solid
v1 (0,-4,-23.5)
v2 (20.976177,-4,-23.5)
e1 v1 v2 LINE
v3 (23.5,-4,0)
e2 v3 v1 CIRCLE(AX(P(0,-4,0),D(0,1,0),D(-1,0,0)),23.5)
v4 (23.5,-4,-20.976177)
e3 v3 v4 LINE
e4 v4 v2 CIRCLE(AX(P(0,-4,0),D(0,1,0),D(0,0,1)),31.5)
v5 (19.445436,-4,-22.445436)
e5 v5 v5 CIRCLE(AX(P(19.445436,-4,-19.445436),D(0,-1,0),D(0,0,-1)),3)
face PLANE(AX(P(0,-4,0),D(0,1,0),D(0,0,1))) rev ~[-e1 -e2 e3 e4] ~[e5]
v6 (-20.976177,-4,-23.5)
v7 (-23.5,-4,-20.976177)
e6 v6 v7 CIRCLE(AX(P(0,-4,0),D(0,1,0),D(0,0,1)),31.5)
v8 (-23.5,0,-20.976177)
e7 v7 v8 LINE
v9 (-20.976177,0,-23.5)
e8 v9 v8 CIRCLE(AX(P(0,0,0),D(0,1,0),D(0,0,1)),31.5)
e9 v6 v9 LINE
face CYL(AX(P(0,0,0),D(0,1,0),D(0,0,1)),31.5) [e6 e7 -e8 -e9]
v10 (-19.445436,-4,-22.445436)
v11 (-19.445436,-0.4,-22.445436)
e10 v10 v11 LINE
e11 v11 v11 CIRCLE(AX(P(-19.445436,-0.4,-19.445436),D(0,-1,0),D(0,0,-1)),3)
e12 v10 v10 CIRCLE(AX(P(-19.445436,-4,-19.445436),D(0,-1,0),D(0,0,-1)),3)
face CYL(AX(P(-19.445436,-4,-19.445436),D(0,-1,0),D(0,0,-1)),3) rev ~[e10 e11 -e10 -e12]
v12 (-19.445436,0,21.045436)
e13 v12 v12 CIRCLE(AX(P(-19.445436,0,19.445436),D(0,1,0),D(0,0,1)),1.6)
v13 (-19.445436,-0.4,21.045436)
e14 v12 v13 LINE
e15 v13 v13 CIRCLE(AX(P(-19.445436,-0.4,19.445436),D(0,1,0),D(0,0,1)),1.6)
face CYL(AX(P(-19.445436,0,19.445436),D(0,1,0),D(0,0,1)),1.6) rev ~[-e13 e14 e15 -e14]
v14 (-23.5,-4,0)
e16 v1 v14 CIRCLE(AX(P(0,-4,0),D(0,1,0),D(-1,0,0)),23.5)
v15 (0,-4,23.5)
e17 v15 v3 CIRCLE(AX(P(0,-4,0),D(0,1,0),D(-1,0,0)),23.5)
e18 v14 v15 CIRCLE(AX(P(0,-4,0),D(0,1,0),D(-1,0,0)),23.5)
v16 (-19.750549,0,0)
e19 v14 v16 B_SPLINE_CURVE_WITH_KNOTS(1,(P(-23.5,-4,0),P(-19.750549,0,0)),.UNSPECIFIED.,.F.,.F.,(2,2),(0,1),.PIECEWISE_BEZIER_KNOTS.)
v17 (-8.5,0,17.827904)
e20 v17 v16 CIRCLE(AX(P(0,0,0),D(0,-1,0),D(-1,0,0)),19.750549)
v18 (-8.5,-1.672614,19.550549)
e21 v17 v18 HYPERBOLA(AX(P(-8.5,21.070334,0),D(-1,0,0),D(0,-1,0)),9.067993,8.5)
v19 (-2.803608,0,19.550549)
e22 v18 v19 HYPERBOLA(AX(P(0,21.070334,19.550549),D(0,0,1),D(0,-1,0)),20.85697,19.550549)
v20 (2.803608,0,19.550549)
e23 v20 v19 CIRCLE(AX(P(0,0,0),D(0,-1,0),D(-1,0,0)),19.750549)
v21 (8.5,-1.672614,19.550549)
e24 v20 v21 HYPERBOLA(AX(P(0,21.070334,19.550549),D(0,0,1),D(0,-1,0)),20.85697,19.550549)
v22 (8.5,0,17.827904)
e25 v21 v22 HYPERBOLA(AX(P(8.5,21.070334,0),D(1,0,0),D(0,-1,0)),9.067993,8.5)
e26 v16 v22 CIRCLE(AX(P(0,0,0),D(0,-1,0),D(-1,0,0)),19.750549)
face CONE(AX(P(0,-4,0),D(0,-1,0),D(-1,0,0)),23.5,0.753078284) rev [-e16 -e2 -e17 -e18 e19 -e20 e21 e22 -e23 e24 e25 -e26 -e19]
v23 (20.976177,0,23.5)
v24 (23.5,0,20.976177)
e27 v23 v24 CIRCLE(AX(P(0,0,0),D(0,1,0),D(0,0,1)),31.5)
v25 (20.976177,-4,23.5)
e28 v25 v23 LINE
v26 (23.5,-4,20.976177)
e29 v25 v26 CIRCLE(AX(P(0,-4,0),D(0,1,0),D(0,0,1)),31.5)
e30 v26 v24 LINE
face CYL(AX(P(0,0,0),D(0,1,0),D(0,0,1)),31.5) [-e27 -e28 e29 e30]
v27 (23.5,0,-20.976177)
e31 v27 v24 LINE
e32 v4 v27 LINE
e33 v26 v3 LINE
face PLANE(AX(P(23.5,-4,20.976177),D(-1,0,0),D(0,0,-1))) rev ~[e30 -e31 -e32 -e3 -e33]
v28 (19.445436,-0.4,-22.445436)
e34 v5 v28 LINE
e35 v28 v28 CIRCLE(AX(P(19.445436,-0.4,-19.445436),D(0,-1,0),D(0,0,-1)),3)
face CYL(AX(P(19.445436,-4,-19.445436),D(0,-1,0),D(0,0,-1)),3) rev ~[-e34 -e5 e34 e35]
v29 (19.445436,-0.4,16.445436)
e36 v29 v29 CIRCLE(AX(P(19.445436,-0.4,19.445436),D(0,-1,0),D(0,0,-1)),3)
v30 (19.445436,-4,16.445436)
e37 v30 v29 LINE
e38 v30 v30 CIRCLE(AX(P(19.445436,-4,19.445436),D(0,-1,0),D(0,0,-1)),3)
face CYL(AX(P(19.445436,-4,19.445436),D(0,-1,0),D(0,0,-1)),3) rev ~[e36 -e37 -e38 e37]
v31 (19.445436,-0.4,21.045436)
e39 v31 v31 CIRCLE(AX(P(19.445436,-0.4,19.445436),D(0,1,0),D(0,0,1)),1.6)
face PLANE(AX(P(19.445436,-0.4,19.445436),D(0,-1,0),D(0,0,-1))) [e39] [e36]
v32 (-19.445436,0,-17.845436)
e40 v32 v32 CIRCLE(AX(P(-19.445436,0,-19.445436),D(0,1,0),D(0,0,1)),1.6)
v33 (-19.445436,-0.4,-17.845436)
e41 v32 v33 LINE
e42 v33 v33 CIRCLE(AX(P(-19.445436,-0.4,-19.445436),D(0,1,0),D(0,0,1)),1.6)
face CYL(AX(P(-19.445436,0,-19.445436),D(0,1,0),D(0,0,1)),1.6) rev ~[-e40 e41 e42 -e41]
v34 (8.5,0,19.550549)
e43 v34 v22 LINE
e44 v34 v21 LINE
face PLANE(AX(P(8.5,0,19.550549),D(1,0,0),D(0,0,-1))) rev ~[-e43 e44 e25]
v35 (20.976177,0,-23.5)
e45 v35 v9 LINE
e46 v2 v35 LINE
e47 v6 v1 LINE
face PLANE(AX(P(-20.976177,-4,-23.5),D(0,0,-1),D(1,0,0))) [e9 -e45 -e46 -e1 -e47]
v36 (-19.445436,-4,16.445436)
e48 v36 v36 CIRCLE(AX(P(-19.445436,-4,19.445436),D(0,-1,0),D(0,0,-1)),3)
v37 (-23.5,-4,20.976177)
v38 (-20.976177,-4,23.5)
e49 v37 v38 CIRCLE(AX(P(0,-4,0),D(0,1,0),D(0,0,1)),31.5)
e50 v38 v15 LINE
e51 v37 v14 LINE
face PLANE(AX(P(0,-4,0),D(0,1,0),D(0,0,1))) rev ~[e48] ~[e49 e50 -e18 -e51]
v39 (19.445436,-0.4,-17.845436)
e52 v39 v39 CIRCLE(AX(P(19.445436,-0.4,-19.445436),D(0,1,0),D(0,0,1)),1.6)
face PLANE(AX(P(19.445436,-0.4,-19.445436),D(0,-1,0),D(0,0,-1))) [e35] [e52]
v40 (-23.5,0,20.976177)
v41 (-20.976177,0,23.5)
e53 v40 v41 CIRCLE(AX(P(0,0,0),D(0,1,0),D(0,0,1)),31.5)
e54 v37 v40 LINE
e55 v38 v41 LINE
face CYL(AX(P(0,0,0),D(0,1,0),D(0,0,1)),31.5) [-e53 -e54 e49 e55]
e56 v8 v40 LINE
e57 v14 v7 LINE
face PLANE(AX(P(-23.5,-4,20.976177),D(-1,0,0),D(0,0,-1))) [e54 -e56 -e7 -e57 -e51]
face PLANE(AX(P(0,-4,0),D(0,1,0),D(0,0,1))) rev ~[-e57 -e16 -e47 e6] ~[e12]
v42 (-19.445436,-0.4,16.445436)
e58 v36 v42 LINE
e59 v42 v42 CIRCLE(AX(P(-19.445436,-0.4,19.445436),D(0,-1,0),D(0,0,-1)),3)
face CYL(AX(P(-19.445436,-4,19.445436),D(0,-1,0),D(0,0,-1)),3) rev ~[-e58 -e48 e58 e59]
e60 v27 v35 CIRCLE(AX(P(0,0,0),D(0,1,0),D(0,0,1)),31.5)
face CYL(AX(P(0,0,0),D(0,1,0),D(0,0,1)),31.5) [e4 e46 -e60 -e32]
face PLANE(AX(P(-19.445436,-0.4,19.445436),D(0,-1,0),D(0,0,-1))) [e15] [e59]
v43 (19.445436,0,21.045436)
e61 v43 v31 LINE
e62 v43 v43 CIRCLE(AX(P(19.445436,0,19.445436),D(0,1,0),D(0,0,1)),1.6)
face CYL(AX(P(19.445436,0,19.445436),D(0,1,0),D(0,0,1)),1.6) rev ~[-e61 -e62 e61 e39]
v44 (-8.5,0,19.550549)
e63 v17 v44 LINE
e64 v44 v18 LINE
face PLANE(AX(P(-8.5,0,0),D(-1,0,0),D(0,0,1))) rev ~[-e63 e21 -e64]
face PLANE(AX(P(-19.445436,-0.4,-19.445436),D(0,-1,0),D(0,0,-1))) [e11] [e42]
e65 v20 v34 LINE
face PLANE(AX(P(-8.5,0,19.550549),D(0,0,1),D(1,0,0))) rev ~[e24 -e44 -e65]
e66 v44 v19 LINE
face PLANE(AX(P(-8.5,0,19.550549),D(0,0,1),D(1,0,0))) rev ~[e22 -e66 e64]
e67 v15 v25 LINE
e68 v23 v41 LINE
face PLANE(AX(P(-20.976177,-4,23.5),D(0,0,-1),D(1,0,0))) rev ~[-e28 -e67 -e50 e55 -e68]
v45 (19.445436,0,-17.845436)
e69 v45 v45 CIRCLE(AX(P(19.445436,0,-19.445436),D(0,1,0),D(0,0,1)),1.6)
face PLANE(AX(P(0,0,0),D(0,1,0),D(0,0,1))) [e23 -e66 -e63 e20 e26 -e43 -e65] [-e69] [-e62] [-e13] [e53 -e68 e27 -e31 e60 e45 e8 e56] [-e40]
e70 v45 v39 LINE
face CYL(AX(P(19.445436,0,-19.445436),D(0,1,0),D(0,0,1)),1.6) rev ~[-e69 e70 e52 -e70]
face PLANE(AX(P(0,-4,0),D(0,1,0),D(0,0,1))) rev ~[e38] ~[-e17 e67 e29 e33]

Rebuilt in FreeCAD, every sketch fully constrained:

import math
import FreeCAD as App
import Part
import Sketcher

V = App.Vector
Q = App.Units.Quantity

doc = App.newDocument("Part")
params = doc.addObject("Spreadsheet::Sheet", "Params")
for row, (alias, value) in enumerate([
    ("sketch1_diameter", "63 mm"),
    ("sketch1_diameter2", "3.2 mm"),
    ("pad1_length", "4 mm"),
    ("sketch2_diameter", "47 mm"),
    ("sketch4_radius", "31.5 mm"),
    ("sketch5_diameter", "6 mm"),
    ("pocket2_length", "3.6 mm"),
    ("sketch6_width", "17 mm"),
], start=1):
    params.set(f"A{row}", alias)
    params.set(f"B{row}", "=" + value)
    params.setAlias(f"B{row}", alias)

body = doc.addObject("PartDesign::Body", "Body")

# Sketch on XZ plane
sketch1 = body.newObject("Sketcher::SketchObject", "Sketch")
sketch1.AttachmentSupport = (doc.getObject("XZ_Plane"), [""])
sketch1.MapMode = "FlatFace"
sketch1.addGeometry([
    Part.Circle(V(0, 0, 0), V(0, 0, 1), 31.5),  # 0
    Part.Circle(V(-19.4, -19.4, 0), V(0, 0, 1), 1.6),  # 1
    Part.Circle(V(-19.4, 19.4, 0), V(0, 0, 1), 1.6),  # 2
    Part.Circle(V(19.4, -19.4, 0), V(0, 0, 1), 1.6),  # 3
    Part.Circle(V(19.4, 19.4, 0), V(0, 0, 1), 1.6),  # 4
], False)
sketch1.addConstraint([
    Sketcher.Constraint("Coincident", 0, 3, -1, 1),
    Sketcher.Constraint("Equal", 1, 2),
    Sketcher.Constraint("Equal", 2, 3),
    Sketcher.Constraint("Equal", 3, 4),
    Sketcher.Constraint("Symmetric", 2, 3, 3, 3, -1, 1),
    Sketcher.Constraint("Symmetric", 1, 3, 4, 3, -1, 1),
    Sketcher.Constraint("Symmetric", 1, 3, 3, 3, -2),
    Sketcher.Constraint("Diameter", 0, Q("63 mm")),
    Sketcher.Constraint("Diameter", 1, Q("3.2 mm")),
    Sketcher.Constraint("DistanceX", 1, 3, -1, 1, Q("19.445436 mm")),
    Sketcher.Constraint("DistanceY", 1, 3, -1, 1, Q("19.445436 mm")),
])
sketch1.setExpression("Constraints[7]", "Params.sketch1_diameter")
sketch1.setExpression("Constraints[8]", "Params.sketch1_diameter2")
pad1 = body.newObject("PartDesign::Pad", "Pad")
pad1.Profile = sketch1
pad1.setExpression("Length", "Params.pad1_length")

# Sketch on XZ plane
sketch2 = body.newObject("Sketcher::SketchObject", "Sketch001")
sketch2.AttachmentSupport = (doc.getObject("XZ_Plane"), [""])
sketch2.MapMode = "FlatFace"
sketch2.AttachmentOffset = App.Placement(V(0, 0, 4), App.Rotation())
sketch2.addGeometry(Part.Circle(V(0, 0, 0), V(0, 0, 1), 24), False)
sketch2.addConstraint([
    Sketcher.Constraint("Coincident", 0, 3, -1, 1),
    Sketcher.Constraint("Diameter", 0, Q("47 mm")),
])
sketch2.setExpression("Constraints[1]", "Params.sketch2_diameter")

# Sketch on XZ plane
sketch3 = body.newObject("Sketcher::SketchObject", "Sketch002")
sketch3.AttachmentSupport = (doc.getObject("XZ_Plane"), [""])
sketch3.MapMode = "FlatFace"
sketch3.addGeometry(Part.Circle(V(0, 0, 0), V(0, 0, 1), 20), False)
sketch3.addConstraint([
    Sketcher.Constraint("Coincident", 0, 3, -1, 1),
    Sketcher.Constraint("Diameter", 0, Q("39.501097 mm")),
])

subtractiveloft = body.newObject("PartDesign::SubtractiveLoft", "SubtractiveLoft")
subtractiveloft.Profile = sketch2
subtractiveloft.Sections = [sketch3]

# Sketch on XZ plane
sketch4 = body.newObject("Sketcher::SketchObject", "Sketch003")
sketch4.AttachmentSupport = (doc.getObject("XZ_Plane"), [""])
sketch4.MapMode = "FlatFace"
sketch4.AttachmentOffset = App.Placement(V(0, 0, 4), App.Rotation())
sketch4.addGeometry([
    Part.LineSegment(V(21, -24, 0), V(-21, -24, 0)),  # 0
    Part.ArcOfCircle(Part.Circle(V(0, 0, 0), V(0, 0, 1), 31), math.radians(-132), math.radians(-48)),  # 1
    Part.LineSegment(V(-21, 24, 0), V(21, 24, 0)),  # 2
    Part.ArcOfCircle(Part.Circle(V(0, 0, 0), V(0, 0, 1), 31), math.radians(48), math.radians(132)),  # 3
    Part.LineSegment(V(-24, -21, 0), V(-24, 21, 0)),  # 4
    Part.ArcOfCircle(Part.Circle(V(0, 0, 0), V(0, 0, 1), 31), math.radians(138), math.radians(222)),  # 5
    Part.LineSegment(V(24, 21, 0), V(24, -21, 0)),  # 6
    Part.ArcOfCircle(Part.Circle(V(0, 0, 0), V(0, 0, 1), 31), math.radians(-42), math.radians(42)),  # 7
], False)
sketch4.addConstraint([
    Sketcher.Constraint("Coincident", 0, 1, 1, 2),
    Sketcher.Constraint("Coincident", 1, 1, 0, 2),
    Sketcher.Constraint("Coincident", 2, 1, 3, 2),
    Sketcher.Constraint("Coincident", 3, 1, 2, 2),
    Sketcher.Constraint("Coincident", 4, 1, 5, 2),
    Sketcher.Constraint("Coincident", 5, 1, 4, 2),
    Sketcher.Constraint("Coincident", 6, 1, 7, 2),
    Sketcher.Constraint("Coincident", 7, 1, 6, 2),
    Sketcher.Constraint("Horizontal", 0),
    Sketcher.Constraint("Horizontal", 2),
    Sketcher.Constraint("Vertical", 4),
    Sketcher.Constraint("Vertical", 6),
    Sketcher.Constraint("Coincident", 1, 3, -1, 1),
    Sketcher.Constraint("Coincident", 3, 3, -1, 1),
    Sketcher.Constraint("Coincident", 5, 3, -1, 1),
    Sketcher.Constraint("Coincident", 7, 3, -1, 1),
    Sketcher.Constraint("Equal", 1, 3),
    Sketcher.Constraint("Equal", 3, 5),
    Sketcher.Constraint("Equal", 5, 7),
    Sketcher.Constraint("Horizontal", 5, 1, 6, 1),
    Sketcher.Constraint("Vertical", 1, 1, 2, 1),
    Sketcher.Constraint("Equal", 2, 4),
    Sketcher.Constraint("Radius", 1, Q("31.5 mm")),
    Sketcher.Constraint("DistanceY", 1, 1, 2, 1, Q("47 mm")),
])
sketch4.setExpression("Constraints[22]", "Params.sketch4_radius")
pocket1 = body.newObject("PartDesign::Pocket", "Pocket")
pocket1.Profile = sketch4
pocket1.Type = "ThroughAll"

# Sketch on XZ plane
sketch5 = body.newObject("Sketcher::SketchObject", "Sketch004")
sketch5.AttachmentSupport = (doc.getObject("XZ_Plane"), [""])
sketch5.MapMode = "FlatFace"
sketch5.AttachmentOffset = App.Placement(V(0, 0, 4), App.Rotation())
sketch5.addGeometry([
    Part.Circle(V(-19.4, 19.4, 0), V(0, 0, 1), 3),
    Part.Circle(V(-19.4, -19.4, 0), V(0, 0, 1), 3),
    Part.Circle(V(19.4, 19.4, 0), V(0, 0, 1), 3),
    Part.Circle(V(19.4, -19.4, 0), V(0, 0, 1), 3),
], False)
sketch5.addConstraint([
    Sketcher.Constraint("Equal", 0, 1),
    Sketcher.Constraint("Equal", 1, 2),
    Sketcher.Constraint("Equal", 2, 3),
    Sketcher.Constraint("Symmetric", 1, 3, 2, 3, -1, 1),
    Sketcher.Constraint("Symmetric", 0, 3, 3, 3, -1, 1),
    Sketcher.Constraint("Symmetric", 0, 3, 2, 3, -2),
    Sketcher.Constraint("Diameter", 0, Q("6 mm")),
    Sketcher.Constraint("DistanceX", 0, 3, -1, 1, Q("19.445436 mm")),
    Sketcher.Constraint("DistanceY", -1, 1, 0, 3, Q("19.445436 mm")),
])
sketch5.setExpression("Constraints[6]", "Params.sketch5_diameter")
pocket2 = body.newObject("PartDesign::Pocket", "Pocket001")
pocket2.Profile = sketch5
pocket2.setExpression("Length", "Params.pocket2_length")

# Sketch on XZ plane
sketch6 = body.newObject("Sketcher::SketchObject", "Sketch005")
sketch6.AttachmentSupport = (doc.getObject("XZ_Plane"), [""])
sketch6.MapMode = "FlatFace"
sketch6.addGeometry([
    Part.LineSegment(V(-8, 20, 0), V(8, 20, 0)),
    Part.LineSegment(V(8, 20, 0), V(8, 0, 0)),
    Part.LineSegment(V(8, 0, 0), V(-8, 0, 0)),
    Part.LineSegment(V(-8, 0, 0), V(-8, 20, 0)),
], False)
sketch6.addConstraint([
    Sketcher.Constraint("Coincident", 0, 2, 1, 1),
    Sketcher.Constraint("Coincident", 1, 2, 2, 1),
    Sketcher.Constraint("Coincident", 2, 2, 3, 1),
    Sketcher.Constraint("Coincident", 3, 2, 0, 1),
    Sketcher.Constraint("Horizontal", 0),
    Sketcher.Constraint("Vertical", 1),
    Sketcher.Constraint("Horizontal", 2),
    Sketcher.Constraint("Vertical", 3),
    Sketcher.Constraint("Symmetric", 1, 2, 2, 2, -1, 1),
    Sketcher.Constraint("DistanceX", 0, 1, 0, 2, Q("17 mm")),
    Sketcher.Constraint("DistanceY", 1, 2, 1, 1, Q("19.550549 mm")),
])
sketch6.setExpression("Constraints[9]", "Params.sketch6_width")
pocket3 = body.newObject("PartDesign::Pocket", "Pocket002")
pocket3.Profile = sketch6
pocket3.Type = "ThroughAll"
pocket3.Reversed = True

doc.recompute()
